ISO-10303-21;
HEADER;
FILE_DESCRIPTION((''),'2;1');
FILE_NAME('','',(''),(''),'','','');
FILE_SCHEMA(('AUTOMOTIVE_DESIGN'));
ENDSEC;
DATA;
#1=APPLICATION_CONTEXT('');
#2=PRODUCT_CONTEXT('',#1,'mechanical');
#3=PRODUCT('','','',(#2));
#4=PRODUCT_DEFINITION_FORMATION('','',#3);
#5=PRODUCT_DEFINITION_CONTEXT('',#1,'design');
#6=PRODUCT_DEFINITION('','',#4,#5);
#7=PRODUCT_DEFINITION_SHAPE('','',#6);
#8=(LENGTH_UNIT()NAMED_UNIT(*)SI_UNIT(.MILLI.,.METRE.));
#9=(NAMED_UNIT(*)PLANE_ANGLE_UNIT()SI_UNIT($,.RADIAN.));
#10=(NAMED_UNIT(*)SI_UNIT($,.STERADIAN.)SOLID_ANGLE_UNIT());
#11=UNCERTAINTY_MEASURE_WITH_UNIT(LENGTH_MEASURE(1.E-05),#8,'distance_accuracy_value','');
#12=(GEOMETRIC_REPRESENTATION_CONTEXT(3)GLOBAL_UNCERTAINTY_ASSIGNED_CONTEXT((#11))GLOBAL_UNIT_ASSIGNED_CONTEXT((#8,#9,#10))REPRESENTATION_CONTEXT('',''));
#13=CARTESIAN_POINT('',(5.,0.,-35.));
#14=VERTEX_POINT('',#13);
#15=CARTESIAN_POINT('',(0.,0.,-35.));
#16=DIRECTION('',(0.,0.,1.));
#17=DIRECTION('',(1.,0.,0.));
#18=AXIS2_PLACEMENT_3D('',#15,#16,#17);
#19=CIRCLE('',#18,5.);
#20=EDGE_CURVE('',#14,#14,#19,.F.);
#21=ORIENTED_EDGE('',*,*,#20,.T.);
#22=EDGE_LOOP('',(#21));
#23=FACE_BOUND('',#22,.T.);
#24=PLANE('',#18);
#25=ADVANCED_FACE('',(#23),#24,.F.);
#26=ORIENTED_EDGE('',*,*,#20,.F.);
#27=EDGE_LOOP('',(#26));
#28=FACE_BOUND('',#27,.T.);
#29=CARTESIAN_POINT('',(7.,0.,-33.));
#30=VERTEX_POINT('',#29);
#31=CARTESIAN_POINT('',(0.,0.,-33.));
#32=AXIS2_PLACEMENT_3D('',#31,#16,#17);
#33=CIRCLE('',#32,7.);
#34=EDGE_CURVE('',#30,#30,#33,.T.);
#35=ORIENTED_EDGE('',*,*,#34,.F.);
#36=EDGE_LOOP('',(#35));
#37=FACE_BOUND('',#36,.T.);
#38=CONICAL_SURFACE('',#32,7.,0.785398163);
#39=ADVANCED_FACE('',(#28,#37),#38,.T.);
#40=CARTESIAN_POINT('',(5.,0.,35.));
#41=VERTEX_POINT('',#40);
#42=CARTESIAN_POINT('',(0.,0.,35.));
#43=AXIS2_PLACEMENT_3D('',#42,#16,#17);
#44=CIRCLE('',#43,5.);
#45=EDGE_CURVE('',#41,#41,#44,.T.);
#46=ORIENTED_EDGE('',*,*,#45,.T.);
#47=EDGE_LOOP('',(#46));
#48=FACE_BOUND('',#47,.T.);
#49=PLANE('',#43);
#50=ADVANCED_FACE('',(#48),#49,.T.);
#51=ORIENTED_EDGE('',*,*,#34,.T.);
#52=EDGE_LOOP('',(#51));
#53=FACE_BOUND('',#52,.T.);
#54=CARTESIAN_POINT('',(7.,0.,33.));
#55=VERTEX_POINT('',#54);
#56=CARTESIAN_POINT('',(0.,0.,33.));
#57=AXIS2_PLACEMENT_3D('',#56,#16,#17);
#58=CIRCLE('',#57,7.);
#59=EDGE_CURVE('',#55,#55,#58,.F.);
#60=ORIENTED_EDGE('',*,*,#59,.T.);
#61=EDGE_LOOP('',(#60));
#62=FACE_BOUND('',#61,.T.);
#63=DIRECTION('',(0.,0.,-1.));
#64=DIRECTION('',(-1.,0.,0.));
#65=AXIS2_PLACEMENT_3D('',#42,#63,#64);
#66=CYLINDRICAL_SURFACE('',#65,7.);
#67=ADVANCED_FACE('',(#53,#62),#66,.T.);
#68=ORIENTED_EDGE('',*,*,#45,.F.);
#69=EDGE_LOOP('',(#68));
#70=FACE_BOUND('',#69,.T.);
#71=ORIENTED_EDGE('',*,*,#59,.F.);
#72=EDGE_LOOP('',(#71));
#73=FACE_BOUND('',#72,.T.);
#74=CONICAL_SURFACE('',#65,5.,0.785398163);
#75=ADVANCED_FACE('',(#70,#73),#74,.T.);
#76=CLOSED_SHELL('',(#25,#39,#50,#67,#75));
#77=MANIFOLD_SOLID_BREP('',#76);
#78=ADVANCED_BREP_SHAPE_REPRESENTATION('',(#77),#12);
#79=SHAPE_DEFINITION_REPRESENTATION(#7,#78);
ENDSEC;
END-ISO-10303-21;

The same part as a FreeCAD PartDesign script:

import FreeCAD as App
import Part
import Sketcher

V = App.Vector
Q = App.Units.Quantity


def edges_at(feature, points):
    """Names of the edges that pass closest to the given points."""
    edges = feature.Shape.Edges
    near = lambda p: min(range(len(edges)), key=lambda i: edges[i].distToShape(Part.Vertex(*p))[0])
    return sorted({f"Edge{near(p) + 1}" for p in points})

doc = App.newDocument("Part")
body = doc.addObject("PartDesign::Body", "Body")

sketch1 = body.newObject("Sketcher::SketchObject", "Sketch")
sketch1.AttachmentSupport = (doc.getObject("XY_Plane"), [""])
sketch1.MapMode = "FlatFace"
sketch1.addGeometry(Part.Circle(V(0, 0, 0), V(0, 0, 1), 7), False)
sketch1.addConstraint(Sketcher.Constraint("Coincident", 0, 3, -1, 1))
sketch1.addConstraint(Sketcher.Constraint("Diameter", 0, Q("14 mm")))
pad1 = body.newObject("PartDesign::Pad", "Pad")
pad1.Profile = sketch1
pad1.Length = 70
pad1.Midplane = True
doc.recompute()

chamfer = body.newObject("PartDesign::Chamfer", "Chamfer")
chamfer.Base = (pad1, edges_at(pad1, [(-7, 0, -35)]))
chamfer.Size = 2
doc.recompute()

chamfer2 = body.newObject("PartDesign::Chamfer", "Chamfer001")
chamfer2.Base = (chamfer, edges_at(chamfer, [(-7, 0, 35)]))
chamfer2.Size = 2

doc.recompute()
